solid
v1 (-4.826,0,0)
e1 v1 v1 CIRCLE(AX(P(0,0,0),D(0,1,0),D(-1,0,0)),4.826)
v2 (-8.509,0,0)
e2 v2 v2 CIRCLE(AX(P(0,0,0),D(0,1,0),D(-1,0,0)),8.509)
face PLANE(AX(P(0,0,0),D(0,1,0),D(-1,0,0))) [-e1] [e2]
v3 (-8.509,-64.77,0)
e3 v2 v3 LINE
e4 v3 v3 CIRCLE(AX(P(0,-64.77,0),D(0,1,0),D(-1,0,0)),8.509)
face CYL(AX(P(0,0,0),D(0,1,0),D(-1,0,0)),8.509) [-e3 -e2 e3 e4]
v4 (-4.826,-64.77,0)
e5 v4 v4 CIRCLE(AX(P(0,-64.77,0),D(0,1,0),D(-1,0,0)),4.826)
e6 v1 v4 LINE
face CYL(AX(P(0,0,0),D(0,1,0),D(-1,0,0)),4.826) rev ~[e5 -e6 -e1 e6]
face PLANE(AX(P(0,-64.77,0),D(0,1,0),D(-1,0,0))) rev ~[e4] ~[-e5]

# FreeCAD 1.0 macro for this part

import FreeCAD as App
import Part
import Sketcher
Q = App.Units.Quantity

doc = App.newDocument("Part")
body = doc.addObject("PartDesign::Body", "Body")

# Sketch on XZ plane
sketch1 = body.newObject("Sketcher::SketchObject", "Sketch")
sketch1.AttachmentSupport = (doc.getObject("XZ_Plane"), [""])
sketch1.MapMode = "FlatFace"
sketch1.addGeometry([
    Part.Circle(App.Vector(0, 0, 0), App.Vector(0, 0, 1), 8.5),
    Part.Circle(App.Vector(0, 0, 0), App.Vector(0, 0, 1), 4.8),
], False)
sketch1.addConstraint([
    Sketcher.Constraint("Coincident", 0, 3, -1, 1),
    Sketcher.Constraint("Coincident", 1, 3, -1, 1),
    Sketcher.Constraint("Diameter", 0, Q("0.67 in")),
    Sketcher.Constraint("Diameter", 1, Q("0.38 in")),
])
pad1 = body.newObject("PartDesign::Pad", "Pad")
pad1.Profile = sketch1
pad1.Length = Q("2.55 in")

doc.recompute()
